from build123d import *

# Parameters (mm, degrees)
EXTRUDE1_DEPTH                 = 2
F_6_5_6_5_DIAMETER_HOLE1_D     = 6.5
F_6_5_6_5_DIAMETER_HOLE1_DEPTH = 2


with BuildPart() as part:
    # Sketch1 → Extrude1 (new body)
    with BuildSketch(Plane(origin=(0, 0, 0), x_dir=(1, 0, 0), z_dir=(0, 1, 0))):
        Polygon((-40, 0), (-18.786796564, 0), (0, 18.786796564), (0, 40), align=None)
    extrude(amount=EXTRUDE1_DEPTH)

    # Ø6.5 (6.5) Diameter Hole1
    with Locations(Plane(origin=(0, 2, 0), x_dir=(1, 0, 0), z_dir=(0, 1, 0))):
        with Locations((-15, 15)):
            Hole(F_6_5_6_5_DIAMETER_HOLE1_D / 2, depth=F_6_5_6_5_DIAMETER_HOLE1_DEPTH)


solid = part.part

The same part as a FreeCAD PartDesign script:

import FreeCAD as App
import Part
import Sketcher
from FreeCAD import Vector
Q = App.Units.Quantity

doc = App.newDocument("Part")
body = doc.addObject("PartDesign::Body", "Body")

# Sketch on XZ plane
sketch1 = body.newObject("Sketcher::SketchObject", "Sketch")
sketch1.AttachmentSupport = (doc.getObject("XZ_Plane"), [""])
sketch1.MapMode = "FlatFace"
sketch1.addGeometry(Part.LineSegment(Vector(-40, 0, 0), Vector(-18.786797, 0, 0)), False)
sketch1.addGeometry(Part.LineSegment(Vector(-18.786797, 0, 0), Vector(0, -18.786797, 0)), False)
sketch1.addGeometry(Part.LineSegment(Vector(0, -18.786797, 0), Vector(0, -40, 0)), False)
sketch1.addGeometry(Part.LineSegment(Vector(0, -40, 0), Vector(-40, 0, 0)), False)
sketch1.addConstraint(Sketcher.Constraint("Coincident", 0, 2, 1, 1))
sketch1.addConstraint(Sketcher.Constraint("Coincident", 1, 2, 2, 1))
sketch1.addConstraint(Sketcher.Constraint("Coincident", 2, 2, 3, 1))
sketch1.addConstraint(Sketcher.Constraint("Coincident", 3, 2, 0, 1))
sketch1.addConstraint(Sketcher.Constraint("Horizontal", 0))
sketch1.addConstraint(Sketcher.Constraint("Vertical", 2))
sketch1.addConstraint(Sketcher.Constraint("PointOnObject", 0, 2, -1))
sketch1.addConstraint(Sketcher.Constraint("PointOnObject", 1, 2, -2))
sketch1.addConstraint(Sketcher.Constraint("Parallel", 1, 3))
sketch1.addConstraint(Sketcher.Constraint("Equal", 0, 2))
sketch1.addConstraint(Sketcher.Constraint("DistanceY", 2, 2, -1, 1, Q("40 mm")))
sketch1.addConstraint(Sketcher.Constraint("DistanceX", 0, 1, 0, 2, Q("21.213203 mm")))
pad1 = body.newObject("PartDesign::Pad", "Pad")
pad1.Profile = sketch1
pad1.Length = 2
pad1.Reversed = True

# Sketch on XZ plane
sketch2 = body.newObject("Sketcher::SketchObject", "Sketch001")
sketch2.AttachmentSupport = (doc.getObject("XZ_Plane"), [""])
sketch2.MapMode = "FlatFace"
sketch2.AttachmentOffset = App.Placement(Vector(0, 0, -2), App.Rotation())
sketch2.addGeometry(Part.Circle(Vector(-15, -15, 0), Vector(0, 0, 1), 3.25), False)
sketch2.addConstraint(Sketcher.Constraint("Diameter", 0, Q("6.5 mm")))
sketch2.addConstraint(Sketcher.Constraint("DistanceX", 0, 3, -1, 1, Q("15 mm")))
sketch2.addConstraint(Sketcher.Constraint("DistanceY", 0, 3, -1, 1, Q("15 mm")))
doc.recompute()
hole = body.newObject("PartDesign::Hole", "Hole")
hole.Profile = sketch2
hole.ThreadType = "None"
hole.Diameter = 6.5
hole.DepthType = "Dimension"
hole.Depth = 2
hole.DrillPoint = "Flat"
hole.Reversed = True

doc.recompute()
